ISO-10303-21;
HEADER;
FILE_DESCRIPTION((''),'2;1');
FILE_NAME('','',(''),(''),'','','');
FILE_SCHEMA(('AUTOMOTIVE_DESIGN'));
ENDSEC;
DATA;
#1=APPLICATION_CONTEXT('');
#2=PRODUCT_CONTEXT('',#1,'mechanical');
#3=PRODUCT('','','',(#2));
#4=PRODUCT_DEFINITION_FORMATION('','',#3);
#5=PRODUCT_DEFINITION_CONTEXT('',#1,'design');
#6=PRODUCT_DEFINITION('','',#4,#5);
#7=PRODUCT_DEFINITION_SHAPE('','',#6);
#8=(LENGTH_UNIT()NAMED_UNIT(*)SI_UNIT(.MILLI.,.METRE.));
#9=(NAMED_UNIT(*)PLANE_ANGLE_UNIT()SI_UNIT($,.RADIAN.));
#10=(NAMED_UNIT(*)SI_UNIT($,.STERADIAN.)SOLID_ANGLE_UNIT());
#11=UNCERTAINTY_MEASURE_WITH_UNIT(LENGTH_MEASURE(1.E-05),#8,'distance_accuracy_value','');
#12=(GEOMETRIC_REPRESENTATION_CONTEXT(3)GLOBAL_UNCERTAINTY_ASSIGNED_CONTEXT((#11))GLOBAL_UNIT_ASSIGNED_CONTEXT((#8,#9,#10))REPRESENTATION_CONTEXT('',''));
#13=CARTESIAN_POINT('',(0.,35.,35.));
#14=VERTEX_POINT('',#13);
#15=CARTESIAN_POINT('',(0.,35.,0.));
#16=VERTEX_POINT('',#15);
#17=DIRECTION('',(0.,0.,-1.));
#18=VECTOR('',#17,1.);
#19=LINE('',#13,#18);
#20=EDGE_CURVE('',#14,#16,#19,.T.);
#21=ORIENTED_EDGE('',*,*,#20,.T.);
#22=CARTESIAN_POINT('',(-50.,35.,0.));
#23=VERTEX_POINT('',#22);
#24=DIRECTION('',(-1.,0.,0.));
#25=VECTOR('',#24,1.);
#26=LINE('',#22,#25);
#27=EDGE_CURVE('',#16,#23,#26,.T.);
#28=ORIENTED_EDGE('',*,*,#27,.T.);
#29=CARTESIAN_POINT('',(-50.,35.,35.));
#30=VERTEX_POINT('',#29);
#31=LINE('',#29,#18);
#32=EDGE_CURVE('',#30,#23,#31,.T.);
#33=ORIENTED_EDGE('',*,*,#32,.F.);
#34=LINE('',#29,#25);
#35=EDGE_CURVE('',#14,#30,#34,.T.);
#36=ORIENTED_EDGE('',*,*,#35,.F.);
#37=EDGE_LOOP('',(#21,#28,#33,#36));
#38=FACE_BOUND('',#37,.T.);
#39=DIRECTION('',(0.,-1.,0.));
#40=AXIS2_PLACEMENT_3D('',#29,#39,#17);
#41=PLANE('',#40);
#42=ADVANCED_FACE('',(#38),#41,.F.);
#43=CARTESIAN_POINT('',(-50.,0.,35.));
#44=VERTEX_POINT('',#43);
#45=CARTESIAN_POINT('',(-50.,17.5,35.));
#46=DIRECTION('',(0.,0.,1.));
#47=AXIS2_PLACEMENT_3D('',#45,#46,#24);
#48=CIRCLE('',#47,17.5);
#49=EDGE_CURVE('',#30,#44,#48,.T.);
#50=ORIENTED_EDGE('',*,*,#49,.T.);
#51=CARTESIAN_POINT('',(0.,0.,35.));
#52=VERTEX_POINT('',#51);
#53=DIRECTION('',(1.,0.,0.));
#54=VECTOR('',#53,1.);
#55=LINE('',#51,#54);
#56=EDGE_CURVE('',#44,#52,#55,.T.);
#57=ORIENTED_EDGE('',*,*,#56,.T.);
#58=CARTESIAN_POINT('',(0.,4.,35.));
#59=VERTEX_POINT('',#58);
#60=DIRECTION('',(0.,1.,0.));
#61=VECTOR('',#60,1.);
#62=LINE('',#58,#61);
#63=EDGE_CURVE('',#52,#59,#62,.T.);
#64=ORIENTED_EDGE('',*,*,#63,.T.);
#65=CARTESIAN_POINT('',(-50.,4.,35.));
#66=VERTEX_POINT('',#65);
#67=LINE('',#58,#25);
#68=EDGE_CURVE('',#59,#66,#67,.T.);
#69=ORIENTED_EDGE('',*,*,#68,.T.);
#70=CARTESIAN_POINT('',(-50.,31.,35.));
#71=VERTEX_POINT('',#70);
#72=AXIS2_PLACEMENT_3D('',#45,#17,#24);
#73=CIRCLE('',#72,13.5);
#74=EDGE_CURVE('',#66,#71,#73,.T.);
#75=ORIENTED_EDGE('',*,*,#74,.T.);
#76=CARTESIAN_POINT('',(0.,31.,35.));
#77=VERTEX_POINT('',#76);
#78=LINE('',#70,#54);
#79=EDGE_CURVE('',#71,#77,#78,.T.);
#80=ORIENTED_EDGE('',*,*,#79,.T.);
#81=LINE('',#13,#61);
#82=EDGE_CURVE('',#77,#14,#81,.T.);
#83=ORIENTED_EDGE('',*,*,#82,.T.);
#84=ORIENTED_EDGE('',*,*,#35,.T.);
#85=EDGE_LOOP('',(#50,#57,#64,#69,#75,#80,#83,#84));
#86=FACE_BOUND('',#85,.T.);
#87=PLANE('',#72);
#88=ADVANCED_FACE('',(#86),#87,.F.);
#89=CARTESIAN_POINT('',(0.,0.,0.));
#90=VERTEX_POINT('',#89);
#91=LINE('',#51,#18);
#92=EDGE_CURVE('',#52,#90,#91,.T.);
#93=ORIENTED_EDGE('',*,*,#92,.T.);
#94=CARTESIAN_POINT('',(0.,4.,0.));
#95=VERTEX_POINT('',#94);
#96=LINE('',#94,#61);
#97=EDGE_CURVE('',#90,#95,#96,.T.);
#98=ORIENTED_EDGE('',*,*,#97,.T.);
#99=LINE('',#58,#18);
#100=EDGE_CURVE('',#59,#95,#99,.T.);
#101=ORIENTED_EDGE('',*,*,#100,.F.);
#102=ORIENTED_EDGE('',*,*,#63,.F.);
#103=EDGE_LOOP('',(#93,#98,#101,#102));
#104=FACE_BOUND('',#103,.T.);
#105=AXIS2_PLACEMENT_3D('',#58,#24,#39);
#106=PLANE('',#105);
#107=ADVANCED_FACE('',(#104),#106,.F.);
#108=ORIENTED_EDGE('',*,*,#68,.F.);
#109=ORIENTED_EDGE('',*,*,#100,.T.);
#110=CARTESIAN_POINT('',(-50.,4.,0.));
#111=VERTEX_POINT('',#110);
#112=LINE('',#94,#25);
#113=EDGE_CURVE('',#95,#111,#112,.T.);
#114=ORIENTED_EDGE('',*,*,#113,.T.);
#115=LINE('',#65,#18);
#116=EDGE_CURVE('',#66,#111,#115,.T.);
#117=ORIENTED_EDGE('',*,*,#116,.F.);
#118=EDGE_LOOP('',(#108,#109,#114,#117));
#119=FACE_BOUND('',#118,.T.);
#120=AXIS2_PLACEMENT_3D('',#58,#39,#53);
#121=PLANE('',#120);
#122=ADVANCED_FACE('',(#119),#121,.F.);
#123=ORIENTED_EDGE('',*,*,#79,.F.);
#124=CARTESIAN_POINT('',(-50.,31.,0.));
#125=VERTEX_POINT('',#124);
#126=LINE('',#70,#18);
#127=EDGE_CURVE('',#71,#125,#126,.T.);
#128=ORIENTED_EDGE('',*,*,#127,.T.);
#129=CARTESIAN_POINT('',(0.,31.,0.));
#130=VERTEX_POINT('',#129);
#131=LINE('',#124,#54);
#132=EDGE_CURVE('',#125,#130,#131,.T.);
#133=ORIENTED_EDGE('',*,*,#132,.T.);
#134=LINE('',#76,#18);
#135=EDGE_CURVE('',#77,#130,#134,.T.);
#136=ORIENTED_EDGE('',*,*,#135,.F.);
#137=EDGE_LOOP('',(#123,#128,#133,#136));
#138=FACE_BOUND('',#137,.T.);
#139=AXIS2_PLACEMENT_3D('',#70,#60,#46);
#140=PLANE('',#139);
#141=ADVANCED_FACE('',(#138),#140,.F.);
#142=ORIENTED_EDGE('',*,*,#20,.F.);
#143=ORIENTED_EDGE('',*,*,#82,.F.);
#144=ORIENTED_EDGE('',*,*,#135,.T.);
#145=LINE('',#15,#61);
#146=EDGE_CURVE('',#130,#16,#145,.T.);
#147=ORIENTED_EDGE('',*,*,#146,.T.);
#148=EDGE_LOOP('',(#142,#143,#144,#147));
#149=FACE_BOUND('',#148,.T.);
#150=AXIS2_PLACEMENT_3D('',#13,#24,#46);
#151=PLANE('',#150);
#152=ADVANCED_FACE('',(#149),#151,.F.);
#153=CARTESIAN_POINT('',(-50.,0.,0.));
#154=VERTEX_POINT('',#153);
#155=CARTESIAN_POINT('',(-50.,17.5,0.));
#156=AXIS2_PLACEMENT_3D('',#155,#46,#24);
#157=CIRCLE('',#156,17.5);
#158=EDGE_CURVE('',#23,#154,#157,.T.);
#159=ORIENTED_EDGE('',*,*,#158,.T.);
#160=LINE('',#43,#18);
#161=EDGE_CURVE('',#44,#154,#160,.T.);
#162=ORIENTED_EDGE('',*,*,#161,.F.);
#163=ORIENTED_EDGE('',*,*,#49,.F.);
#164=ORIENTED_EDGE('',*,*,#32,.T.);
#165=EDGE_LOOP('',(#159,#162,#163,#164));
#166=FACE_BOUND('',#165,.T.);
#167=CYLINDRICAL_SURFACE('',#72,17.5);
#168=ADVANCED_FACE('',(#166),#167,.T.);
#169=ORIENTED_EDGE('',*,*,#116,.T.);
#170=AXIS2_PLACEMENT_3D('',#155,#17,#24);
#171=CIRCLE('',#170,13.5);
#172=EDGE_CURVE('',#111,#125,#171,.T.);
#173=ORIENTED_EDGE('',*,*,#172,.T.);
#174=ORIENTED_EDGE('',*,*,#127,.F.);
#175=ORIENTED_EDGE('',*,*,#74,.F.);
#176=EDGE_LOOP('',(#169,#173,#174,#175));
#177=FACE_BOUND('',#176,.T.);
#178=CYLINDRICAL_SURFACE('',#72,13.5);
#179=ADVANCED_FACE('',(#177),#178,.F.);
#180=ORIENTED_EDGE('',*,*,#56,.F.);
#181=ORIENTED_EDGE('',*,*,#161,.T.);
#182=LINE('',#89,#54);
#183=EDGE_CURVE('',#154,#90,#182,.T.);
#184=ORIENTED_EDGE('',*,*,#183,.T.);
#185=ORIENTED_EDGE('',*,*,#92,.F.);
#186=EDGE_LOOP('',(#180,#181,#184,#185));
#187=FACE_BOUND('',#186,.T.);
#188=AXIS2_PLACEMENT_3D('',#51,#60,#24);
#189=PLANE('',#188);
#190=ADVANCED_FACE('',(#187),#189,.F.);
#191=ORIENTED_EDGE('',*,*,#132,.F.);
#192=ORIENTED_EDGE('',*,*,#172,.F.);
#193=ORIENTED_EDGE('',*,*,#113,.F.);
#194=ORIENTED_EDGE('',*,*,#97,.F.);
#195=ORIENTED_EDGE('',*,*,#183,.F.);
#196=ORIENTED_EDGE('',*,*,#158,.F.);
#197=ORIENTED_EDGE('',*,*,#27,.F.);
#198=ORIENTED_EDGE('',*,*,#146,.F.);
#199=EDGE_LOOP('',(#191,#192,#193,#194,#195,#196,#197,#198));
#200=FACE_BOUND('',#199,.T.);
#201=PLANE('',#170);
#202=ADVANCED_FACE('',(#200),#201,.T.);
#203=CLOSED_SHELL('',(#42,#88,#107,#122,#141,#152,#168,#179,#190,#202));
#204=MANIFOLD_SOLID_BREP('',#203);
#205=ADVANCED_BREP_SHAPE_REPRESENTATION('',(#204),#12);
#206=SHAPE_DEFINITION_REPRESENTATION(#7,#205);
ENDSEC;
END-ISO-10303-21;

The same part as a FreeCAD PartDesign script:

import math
import FreeCAD as App
import Part
import Sketcher
from FreeCAD import Vector
Q = App.Units.Quantity

doc = App.newDocument("Part")
body = doc.addObject("PartDesign::Body", "Body")

sketch1 = body.newObject("Sketcher::SketchObject", "Sketch")
sketch1.AttachmentSupport = (doc.getObject("XY_Plane"), [""])
sketch1.MapMode = "FlatFace"
sketch1.addGeometry([
    Part.LineSegment(Vector(-50, 0, 0), Vector(0, 0, 0)),
    Part.LineSegment(Vector(0, 0, 0), Vector(0, 4, 0)),
    Part.LineSegment(Vector(0, 4, 0), Vector(-50, 4, 0)),
    Part.ArcOfCircle(Part.Circle(Vector(-50, 17.5, 0), Vector(0, 0, 1), 13.5), math.radians(90), math.radians(270)),
    Part.LineSegment(Vector(-50, 31, 0), Vector(0, 31, 0)),
    Part.LineSegment(Vector(0, 31, 0), Vector(0, 35, 0)),
    Part.LineSegment(Vector(0, 35, 0), Vector(-50, 35, 0)),
    Part.ArcOfCircle(Part.Circle(Vector(-50, 17.5, 0), Vector(0, 0, 1), 17.5), math.radians(90), math.radians(270)),
], False)
sketch1.addConstraint([
    Sketcher.Constraint("Coincident", 0, 2, 1, 1),
    Sketcher.Constraint("Coincident", 1, 2, 2, 1),
    Sketcher.Constraint("Tangent", 2, 2, 3, 2),
    Sketcher.Constraint("Tangent", 3, 1, 4, 1),
    Sketcher.Constraint("Coincident", 4, 2, 5, 1),
    Sketcher.Constraint("Coincident", 5, 2, 6, 1),
    Sketcher.Constraint("Tangent", 6, 2, 7, 1),
    Sketcher.Constraint("Tangent", 7, 2, 0, 1),
    Sketcher.Constraint("Horizontal", 0),
    Sketcher.Constraint("Vertical", 1),
    Sketcher.Constraint("Horizontal", 2),
    Sketcher.Constraint("Horizontal", 4),
    Sketcher.Constraint("Vertical", 5),
    Sketcher.Constraint("Horizontal", 6),
    Sketcher.Constraint("Coincident", 0, 2, -1, 1),
    Sketcher.Constraint("Coincident", 7, 3, 3, 3),
    Sketcher.Constraint("PointOnObject", 4, 2, -2),
    Sketcher.Constraint("Radius", 3, Q("13.5 mm")),
    Sketcher.Constraint("Radius", 7, Q("17.5 mm")),
    Sketcher.Constraint("DistanceX", 0, 1, 0, 2, Q("50 mm")),
])
pad1 = body.newObject("PartDesign::Pad", "Pad")
pad1.Profile = sketch1
pad1.Length = 35

doc.recompute()
